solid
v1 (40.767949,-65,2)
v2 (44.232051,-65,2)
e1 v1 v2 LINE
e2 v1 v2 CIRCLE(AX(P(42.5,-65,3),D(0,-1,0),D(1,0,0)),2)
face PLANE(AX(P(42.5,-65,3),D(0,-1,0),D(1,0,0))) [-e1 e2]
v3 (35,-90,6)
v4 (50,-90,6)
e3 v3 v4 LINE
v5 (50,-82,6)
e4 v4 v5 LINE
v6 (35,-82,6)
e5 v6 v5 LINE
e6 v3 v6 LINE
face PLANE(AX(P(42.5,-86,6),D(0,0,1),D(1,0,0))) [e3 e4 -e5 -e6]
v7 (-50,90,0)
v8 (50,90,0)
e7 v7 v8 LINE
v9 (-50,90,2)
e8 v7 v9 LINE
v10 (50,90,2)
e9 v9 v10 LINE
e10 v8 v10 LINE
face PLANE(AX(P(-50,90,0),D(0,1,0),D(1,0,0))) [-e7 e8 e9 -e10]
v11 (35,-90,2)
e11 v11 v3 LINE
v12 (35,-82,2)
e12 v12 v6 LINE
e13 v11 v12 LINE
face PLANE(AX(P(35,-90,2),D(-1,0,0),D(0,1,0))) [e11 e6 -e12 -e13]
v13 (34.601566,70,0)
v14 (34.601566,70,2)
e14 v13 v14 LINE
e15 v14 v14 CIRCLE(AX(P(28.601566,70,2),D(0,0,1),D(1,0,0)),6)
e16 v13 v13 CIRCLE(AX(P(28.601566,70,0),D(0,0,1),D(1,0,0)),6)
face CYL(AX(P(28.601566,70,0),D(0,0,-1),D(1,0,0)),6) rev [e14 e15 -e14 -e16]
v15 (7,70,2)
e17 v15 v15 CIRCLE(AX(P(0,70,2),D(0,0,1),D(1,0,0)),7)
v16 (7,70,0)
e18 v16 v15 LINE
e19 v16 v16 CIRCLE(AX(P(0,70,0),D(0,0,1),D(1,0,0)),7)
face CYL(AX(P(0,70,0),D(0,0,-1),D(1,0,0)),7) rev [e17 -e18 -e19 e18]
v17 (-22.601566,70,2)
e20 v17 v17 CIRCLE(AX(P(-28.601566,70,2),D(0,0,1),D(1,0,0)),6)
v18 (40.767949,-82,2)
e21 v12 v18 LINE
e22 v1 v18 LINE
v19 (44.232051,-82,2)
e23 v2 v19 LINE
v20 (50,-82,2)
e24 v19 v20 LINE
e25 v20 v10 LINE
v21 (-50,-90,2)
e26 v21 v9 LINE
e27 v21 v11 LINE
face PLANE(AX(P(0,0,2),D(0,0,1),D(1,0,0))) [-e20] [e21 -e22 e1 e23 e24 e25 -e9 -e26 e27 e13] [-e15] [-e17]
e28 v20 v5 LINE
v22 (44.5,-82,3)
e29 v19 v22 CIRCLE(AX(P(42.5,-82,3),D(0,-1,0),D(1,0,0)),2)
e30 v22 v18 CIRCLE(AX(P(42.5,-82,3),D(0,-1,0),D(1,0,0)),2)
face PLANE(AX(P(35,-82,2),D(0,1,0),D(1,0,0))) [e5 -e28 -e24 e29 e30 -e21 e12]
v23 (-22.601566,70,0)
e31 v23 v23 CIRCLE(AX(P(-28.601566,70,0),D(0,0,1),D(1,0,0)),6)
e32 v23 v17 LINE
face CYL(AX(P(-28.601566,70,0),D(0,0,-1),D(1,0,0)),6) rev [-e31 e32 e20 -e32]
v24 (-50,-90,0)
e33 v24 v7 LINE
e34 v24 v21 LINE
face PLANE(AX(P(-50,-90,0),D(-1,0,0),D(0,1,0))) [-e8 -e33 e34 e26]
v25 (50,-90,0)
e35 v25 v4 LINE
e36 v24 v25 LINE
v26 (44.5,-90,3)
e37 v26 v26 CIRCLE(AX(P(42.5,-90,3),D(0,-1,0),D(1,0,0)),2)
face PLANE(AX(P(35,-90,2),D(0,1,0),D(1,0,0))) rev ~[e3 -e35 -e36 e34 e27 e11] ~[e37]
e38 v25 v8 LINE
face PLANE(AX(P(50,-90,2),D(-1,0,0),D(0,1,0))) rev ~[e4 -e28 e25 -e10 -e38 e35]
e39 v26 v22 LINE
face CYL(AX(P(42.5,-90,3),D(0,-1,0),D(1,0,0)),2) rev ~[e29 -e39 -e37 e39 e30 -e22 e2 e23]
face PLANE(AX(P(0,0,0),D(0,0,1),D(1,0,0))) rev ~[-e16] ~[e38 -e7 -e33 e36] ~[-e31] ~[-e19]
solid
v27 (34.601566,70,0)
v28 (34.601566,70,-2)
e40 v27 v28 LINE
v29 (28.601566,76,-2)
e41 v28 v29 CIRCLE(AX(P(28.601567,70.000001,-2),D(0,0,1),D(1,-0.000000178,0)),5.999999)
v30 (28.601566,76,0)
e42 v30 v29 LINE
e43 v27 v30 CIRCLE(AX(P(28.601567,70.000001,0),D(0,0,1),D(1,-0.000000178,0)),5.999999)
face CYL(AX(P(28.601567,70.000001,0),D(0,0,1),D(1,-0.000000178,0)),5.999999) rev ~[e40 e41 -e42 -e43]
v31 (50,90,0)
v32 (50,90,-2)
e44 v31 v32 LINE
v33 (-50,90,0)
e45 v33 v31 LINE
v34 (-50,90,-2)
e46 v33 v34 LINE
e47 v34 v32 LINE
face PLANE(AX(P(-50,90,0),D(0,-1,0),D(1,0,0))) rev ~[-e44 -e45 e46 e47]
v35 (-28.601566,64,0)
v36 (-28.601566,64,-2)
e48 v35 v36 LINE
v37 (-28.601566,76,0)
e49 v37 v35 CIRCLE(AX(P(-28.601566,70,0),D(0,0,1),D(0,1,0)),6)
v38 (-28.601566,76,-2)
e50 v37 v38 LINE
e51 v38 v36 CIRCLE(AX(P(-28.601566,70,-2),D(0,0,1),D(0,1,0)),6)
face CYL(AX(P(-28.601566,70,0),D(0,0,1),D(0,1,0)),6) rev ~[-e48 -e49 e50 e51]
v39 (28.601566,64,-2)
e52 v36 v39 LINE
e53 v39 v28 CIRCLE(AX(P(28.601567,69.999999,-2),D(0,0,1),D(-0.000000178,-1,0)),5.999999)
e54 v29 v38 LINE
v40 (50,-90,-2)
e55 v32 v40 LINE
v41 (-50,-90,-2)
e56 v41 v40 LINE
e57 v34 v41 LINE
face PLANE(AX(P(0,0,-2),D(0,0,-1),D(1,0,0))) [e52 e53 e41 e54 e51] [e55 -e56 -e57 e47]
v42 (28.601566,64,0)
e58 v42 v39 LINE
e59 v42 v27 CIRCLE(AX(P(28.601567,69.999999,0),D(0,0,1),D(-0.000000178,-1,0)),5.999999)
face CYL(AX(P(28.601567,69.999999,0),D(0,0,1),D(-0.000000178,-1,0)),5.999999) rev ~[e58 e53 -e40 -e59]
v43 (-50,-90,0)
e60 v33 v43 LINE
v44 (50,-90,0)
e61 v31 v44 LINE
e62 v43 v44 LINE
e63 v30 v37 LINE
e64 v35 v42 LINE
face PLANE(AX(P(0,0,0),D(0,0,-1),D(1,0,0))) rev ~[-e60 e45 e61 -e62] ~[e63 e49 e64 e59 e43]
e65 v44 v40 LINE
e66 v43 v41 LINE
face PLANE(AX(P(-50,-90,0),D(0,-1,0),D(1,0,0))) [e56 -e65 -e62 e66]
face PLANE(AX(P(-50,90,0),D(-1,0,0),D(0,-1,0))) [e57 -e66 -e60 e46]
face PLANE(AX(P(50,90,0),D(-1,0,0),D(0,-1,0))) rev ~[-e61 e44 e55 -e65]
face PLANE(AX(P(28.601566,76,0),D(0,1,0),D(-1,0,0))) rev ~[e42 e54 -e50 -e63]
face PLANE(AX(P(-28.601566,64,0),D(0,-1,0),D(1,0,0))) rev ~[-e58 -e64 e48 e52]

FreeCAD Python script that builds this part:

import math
import FreeCAD as App
import Part
import Sketcher

V = App.Vector

doc = App.newDocument("Part")
body = doc.addObject("PartDesign::Body", "Body")

# Sketch on XY plane
sketch1 = body.newObject("Sketcher::SketchObject", "Sketch")
sketch1.AttachmentSupport = (doc.getObject("XY_Plane"), [""])
sketch1.MapMode = "FlatFace"
sketch1.addGeometry(Part.LineSegment(V(-50, 90, 0), V(-50, -90, 0)), False)
sketch1.addGeometry(Part.LineSegment(V(-50, -90, 0), V(50, -90, 0)), False)
sketch1.addGeometry(Part.LineSegment(V(50, -90, 0), V(50, 90, 0)), False)
sketch1.addGeometry(Part.LineSegment(V(50, 90, 0), V(-50, 90, 0)), False)
sketch1.addGeometry(Part.Circle(V(-29, 70, 0), V(0, 0, 1), 6), False)
sketch1.addGeometry(Part.Circle(V(0, 70, 0), V(0, 0, 1), 7), False)
sketch1.addGeometry(Part.Circle(V(29, 70, 0), V(0, 0, 1), 6), False)
sketch1.addConstraint(Sketcher.Constraint("Coincident", 0, 2, 1, 1))
sketch1.addConstraint(Sketcher.Constraint("Coincident", 1, 2, 2, 1))
sketch1.addConstraint(Sketcher.Constraint("Coincident", 2, 2, 3, 1))
sketch1.addConstraint(Sketcher.Constraint("Coincident", 3, 2, 0, 1))
sketch1.addConstraint(Sketcher.Constraint("Vertical", 0))
sketch1.addConstraint(Sketcher.Constraint("Horizontal", 1))
sketch1.addConstraint(Sketcher.Constraint("Vertical", 2))
sketch1.addConstraint(Sketcher.Constraint("Horizontal", 3))
sketch1.addConstraint(Sketcher.Constraint("Equal", 4, 6))
sketch1.addConstraint(Sketcher.Constraint("Symmetric", 0, 2, 2, 2, -1, 1))
sketch1.addConstraint(Sketcher.Constraint("Symmetric", 4, 3, 6, 3, -2))
sketch1.addConstraint(Sketcher.Constraint("PointOnObject", 5, 3, -2))
sketch1.addConstraint(Sketcher.Constraint("Horizontal", 4, 3, 5, 3))
sketch1.addConstraint(Sketcher.Constraint("Diameter", 4, 12.0))
sketch1.addConstraint(Sketcher.Constraint("Diameter", 5, 14.0))
sketch1.addConstraint(Sketcher.Constraint("DistanceX", 1, 1, 1, 2, 100.0))
sketch1.addConstraint(Sketcher.Constraint("DistanceY", 0, 2, 0, 1, 180.0))
sketch1.addConstraint(Sketcher.Constraint("DistanceY", -1, 1, 4, 3, 70.0))
sketch1.addConstraint(Sketcher.Constraint("DistanceX", 4, 3, 6, 3, 57.203132))
pad1 = body.newObject("PartDesign::Pad", "Pad")
pad1.Profile = sketch1
pad1.Length = 2

# Sketch on XY plane
sketch2 = body.newObject("Sketcher::SketchObject", "Sketch001")
sketch2.AttachmentSupport = (doc.getObject("XY_Plane"), [""])
sketch2.MapMode = "FlatFace"
sketch2.AttachmentOffset = App.Placement(V(0, 0, 2), App.Rotation())
sketch2.addGeometry(Part.LineSegment(V(35, -82, 0), V(35, -90, 0)), False)
sketch2.addGeometry(Part.LineSegment(V(35, -90, 0), V(50, -90, 0)), False)
sketch2.addGeometry(Part.LineSegment(V(50, -90, 0), V(50, -82, 0)), False)
sketch2.addGeometry(Part.LineSegment(V(50, -82, 0), V(35, -82, 0)), False)
sketch2.addConstraint(Sketcher.Constraint("Coincident", 0, 2, 1, 1))
sketch2.addConstraint(Sketcher.Constraint("Coincident", 1, 2, 2, 1))
sketch2.addConstraint(Sketcher.Constraint("Coincident", 2, 2, 3, 1))
sketch2.addConstraint(Sketcher.Constraint("Coincident", 3, 2, 0, 1))
sketch2.addConstraint(Sketcher.Constraint("Vertical", 0))
sketch2.addConstraint(Sketcher.Constraint("Horizontal", 1))
sketch2.addConstraint(Sketcher.Constraint("Vertical", 2))
sketch2.addConstraint(Sketcher.Constraint("Horizontal", 3))
sketch2.addConstraint(Sketcher.Constraint("DistanceX", 1, 1, 1, 2, 15.0))
sketch2.addConstraint(Sketcher.Constraint("DistanceY", 0, 2, 0, 1, 8.0))
sketch2.addConstraint(Sketcher.Constraint("DistanceX", -1, 1, 0, 2, 35.0))
sketch2.addConstraint(Sketcher.Constraint("DistanceY", 0, 2, -1, 1, 90.0))
pad2 = body.newObject("PartDesign::Pad", "Pad001")
pad2.Profile = sketch2
pad2.Length = 4

# Sketch on XZ plane
sketch3 = body.newObject("Sketcher::SketchObject", "Sketch002")
sketch3.AttachmentSupport = (doc.getObject("XZ_Plane"), [""])
sketch3.MapMode = "FlatFace"
sketch3.AttachmentOffset = App.Placement(V(0, 0, 90), App.Rotation())
sketch3.addGeometry(Part.Circle(V(42.5, 3, 0), V(0, 0, 1), 2), False)
sketch3.addConstraint(Sketcher.Constraint("Diameter", 0, 4.0))
sketch3.addConstraint(Sketcher.Constraint("DistanceY", -1, 1, 0, 3, 3.0))
sketch3.addConstraint(Sketcher.Constraint("DistanceX", -1, 1, 0, 3, 42.5))
pocket1 = body.newObject("PartDesign::Pocket", "Pocket")
pocket1.Profile = sketch3
pocket1.Length = 25
body2 = doc.addObject("PartDesign::Body", "Body001")

# Sketch on XY plane
sketch4 = body2.newObject("Sketcher::SketchObject", "Sketch003")
sketch4.AttachmentSupport = (doc.getObject("XY_Plane001"), [""])
sketch4.MapMode = "FlatFace"
sketch4.addGeometry(Part.LineSegment(V(-50, -90, 0), V(-50, 90, 0)), False)
sketch4.addGeometry(Part.LineSegment(V(-50, 90, 0), V(50, 90, 0)), False)
sketch4.addGeometry(Part.LineSegment(V(50, 90, 0), V(50, -90, 0)), False)
sketch4.addGeometry(Part.LineSegment(V(50, -90, 0), V(-50, -90, 0)), False)
sketch4.addGeometry(Part.LineSegment(V(29, 76, 0), V(-29, 76, 0)), False)
sketch4.addGeometry(Part.ArcOfCircle(Part.Circle(V(-29, 70, 0), V(0, 0, 1), 6), math.radians(90), math.radians(270)), False)
sketch4.addGeometry(Part.LineSegment(V(-29, 64, 0), V(29, 64, 0)), False)
sketch4.addGeometry(Part.ArcOfCircle(Part.Circle(V(29, 70, 0), V(0, 0, 1), 6), math.radians(-90), math.radians(0)), False)
sketch4.addGeometry(Part.ArcOfCircle(Part.Circle(V(29, 70, 0), V(0, 0, 1), 6), math.radians(0), math.radians(90)), False)
sketch4.addConstraint(Sketcher.Constraint("Coincident", 0, 2, 1, 1))
sketch4.addConstraint(Sketcher.Constraint("Coincident", 1, 2, 2, 1))
sketch4.addConstraint(Sketcher.Constraint("Coincident", 2, 2, 3, 1))
sketch4.addConstraint(Sketcher.Constraint("Coincident", 3, 2, 0, 1))
sketch4.addConstraint(Sketcher.Constraint("Tangent", 4, 2, 5, 1))
sketch4.addConstraint(Sketcher.Constraint("Tangent", 5, 2, 6, 1))
sketch4.addConstraint(Sketcher.Constraint("Tangent", 6, 2, 7, 1))
sketch4.addConstraint(Sketcher.Constraint("Tangent", 7, 2, 8, 1))
sketch4.addConstraint(Sketcher.Constraint("Tangent", 8, 2, 4, 1))
sketch4.addConstraint(Sketcher.Constraint("Vertical", 0))
sketch4.addConstraint(Sketcher.Constraint("Horizontal", 1))
sketch4.addConstraint(Sketcher.Constraint("Vertical", 2))
sketch4.addConstraint(Sketcher.Constraint("Horizontal", 3))
sketch4.addConstraint(Sketcher.Constraint("Horizontal", 4))
sketch4.addConstraint(Sketcher.Constraint("Horizontal", 6))
sketch4.addConstraint(Sketcher.Constraint("Equal", 5, 7))
sketch4.addConstraint(Sketcher.Constraint("Symmetric", 0, 2, 2, 2, -1, 1))
sketch4.addConstraint(Sketcher.Constraint("Horizontal", 8, 3, 7, 2))
sketch4.addConstraint(Sketcher.Constraint("Radius", 5, 6.0))
sketch4.addConstraint(Sketcher.Constraint("DistanceX", 1, 1, 1, 2, 100.0))
sketch4.addConstraint(Sketcher.Constraint("DistanceY", 0, 1, 0, 2, 180.0))
sketch4.addConstraint(Sketcher.Constraint("DistanceY", -1, 1, 5, 3, 70.0))
sketch4.addConstraint(Sketcher.Constraint("DistanceX", 4, 2, 4, 1, 57.203132))
sketch4.addConstraint(Sketcher.Constraint("DistanceX", 5, 3, -1, 1, 28.601566))
pad3 = body2.newObject("PartDesign::Pad", "Pad002")
pad3.Profile = sketch4
pad3.Length = 2
pad3.Reversed = True

doc.recompute()
